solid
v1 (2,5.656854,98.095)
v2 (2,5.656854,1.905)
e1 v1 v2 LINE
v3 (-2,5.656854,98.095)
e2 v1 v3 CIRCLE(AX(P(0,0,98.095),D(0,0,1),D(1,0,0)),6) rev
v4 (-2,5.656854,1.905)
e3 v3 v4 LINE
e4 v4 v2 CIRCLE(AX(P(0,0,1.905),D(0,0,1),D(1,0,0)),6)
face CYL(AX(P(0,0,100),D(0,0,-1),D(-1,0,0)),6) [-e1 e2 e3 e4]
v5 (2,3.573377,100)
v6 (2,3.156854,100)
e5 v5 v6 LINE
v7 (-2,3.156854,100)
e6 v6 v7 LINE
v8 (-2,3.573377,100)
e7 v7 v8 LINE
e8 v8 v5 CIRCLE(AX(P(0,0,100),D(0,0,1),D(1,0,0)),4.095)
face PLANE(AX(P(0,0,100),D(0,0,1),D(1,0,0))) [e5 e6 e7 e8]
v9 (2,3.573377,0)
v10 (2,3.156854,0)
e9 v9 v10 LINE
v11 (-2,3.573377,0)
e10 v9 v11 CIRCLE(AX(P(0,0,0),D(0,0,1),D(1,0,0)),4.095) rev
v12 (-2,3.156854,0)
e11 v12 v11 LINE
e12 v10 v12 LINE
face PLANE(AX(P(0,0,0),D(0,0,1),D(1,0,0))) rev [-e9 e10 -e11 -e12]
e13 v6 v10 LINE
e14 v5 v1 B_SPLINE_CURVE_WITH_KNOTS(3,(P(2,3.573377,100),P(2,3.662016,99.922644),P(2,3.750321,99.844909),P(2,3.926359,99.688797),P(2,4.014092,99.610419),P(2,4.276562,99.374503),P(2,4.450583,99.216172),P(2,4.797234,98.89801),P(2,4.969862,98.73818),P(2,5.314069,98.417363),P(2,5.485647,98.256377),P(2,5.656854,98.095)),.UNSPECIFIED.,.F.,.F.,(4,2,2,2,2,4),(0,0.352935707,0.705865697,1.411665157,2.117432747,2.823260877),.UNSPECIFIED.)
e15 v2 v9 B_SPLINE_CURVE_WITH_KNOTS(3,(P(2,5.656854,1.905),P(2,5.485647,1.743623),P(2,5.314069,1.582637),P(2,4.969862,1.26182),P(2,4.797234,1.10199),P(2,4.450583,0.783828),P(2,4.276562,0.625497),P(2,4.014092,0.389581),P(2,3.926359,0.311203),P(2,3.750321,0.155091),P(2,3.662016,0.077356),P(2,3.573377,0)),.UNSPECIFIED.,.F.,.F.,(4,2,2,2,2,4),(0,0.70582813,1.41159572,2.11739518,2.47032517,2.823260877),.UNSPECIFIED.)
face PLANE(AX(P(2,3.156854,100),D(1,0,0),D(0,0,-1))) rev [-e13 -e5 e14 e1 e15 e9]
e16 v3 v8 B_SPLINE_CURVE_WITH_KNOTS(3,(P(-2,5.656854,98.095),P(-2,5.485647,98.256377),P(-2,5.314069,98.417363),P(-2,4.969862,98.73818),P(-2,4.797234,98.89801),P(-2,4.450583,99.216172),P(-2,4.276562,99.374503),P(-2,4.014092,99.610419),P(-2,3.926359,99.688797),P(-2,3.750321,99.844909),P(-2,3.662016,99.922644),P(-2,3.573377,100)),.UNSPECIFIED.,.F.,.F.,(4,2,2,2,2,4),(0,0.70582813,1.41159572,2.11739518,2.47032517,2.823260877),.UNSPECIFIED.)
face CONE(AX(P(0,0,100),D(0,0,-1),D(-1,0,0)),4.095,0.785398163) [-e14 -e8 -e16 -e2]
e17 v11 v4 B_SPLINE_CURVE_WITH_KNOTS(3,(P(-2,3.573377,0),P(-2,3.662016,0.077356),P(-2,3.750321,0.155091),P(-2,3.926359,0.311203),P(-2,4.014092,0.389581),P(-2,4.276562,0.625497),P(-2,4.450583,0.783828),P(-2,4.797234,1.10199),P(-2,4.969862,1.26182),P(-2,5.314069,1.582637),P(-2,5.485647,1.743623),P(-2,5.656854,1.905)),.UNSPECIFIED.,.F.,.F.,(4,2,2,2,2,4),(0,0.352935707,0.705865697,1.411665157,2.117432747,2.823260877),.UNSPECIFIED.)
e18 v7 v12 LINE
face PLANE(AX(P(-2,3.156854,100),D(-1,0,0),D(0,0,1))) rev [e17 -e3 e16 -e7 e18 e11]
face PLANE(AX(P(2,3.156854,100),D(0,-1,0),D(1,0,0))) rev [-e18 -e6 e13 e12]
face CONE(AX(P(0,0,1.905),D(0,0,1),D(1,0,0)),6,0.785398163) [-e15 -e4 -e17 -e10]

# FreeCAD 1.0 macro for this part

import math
import FreeCAD as App
import Part
import Sketcher

V = App.Vector
Q = App.Units.Quantity


def edges_at(feature, points):
    """Names of the edges that pass closest to the given points."""
    edges = feature.Shape.Edges
    near = lambda p: min(range(len(edges)), key=lambda i: edges[i].distToShape(Part.Vertex(*p))[0])
    return sorted({f"Edge{near(p) + 1}" for p in points})

doc = App.newDocument("Part")
body = doc.addObject("PartDesign::Body", "Body")

# Sketch on XY plane
sketch1 = doc.addObject("Sketcher::SketchObject", "Sketch")
body.addObject(sketch1)
sketch1.AttachmentSupport = (doc.XY_Plane, [""])
sketch1.MapMode = "FlatFace"
sketch1.addGeometry([
    Part.LineSegment(V(-2, 3.2, 0), V(-2, 5.7, 0)),
    Part.ArcOfCircle(Part.Circle(V(0, 0, 0), V(0, 0, 1), 6), math.radians(109), math.radians(431)),
    Part.LineSegment(V(2, 5.7, 0), V(2, 3.2, 0)),
    Part.LineSegment(V(2, 3.2, 0), V(-2, 3.2, 0)),
], False)
sketch1.addConstraint([
    Sketcher.Constraint("Coincident", 0, 2, 1, 1),
    Sketcher.Constraint("Coincident", 1, 2, 2, 1),
    Sketcher.Constraint("Coincident", 2, 2, 3, 1),
    Sketcher.Constraint("Coincident", 3, 2, 0, 1),
    Sketcher.Constraint("Vertical", 0),
    Sketcher.Constraint("Vertical", 2),
    Sketcher.Constraint("Horizontal", 3),
    Sketcher.Constraint("Coincident", 1, 3, -1, 1),
    Sketcher.Constraint("Horizontal", 0, 2, 1, 2),
    Sketcher.Constraint("Radius", 1, Q("6 mm")),
    Sketcher.Constraint("DistanceX", 3, 2, 3, 1, Q("4 mm")),
    Sketcher.Constraint("DistanceY", 0, 1, 0, 2, Q("2.5 mm")),
])
pad1 = doc.addObject("PartDesign::Pad", "Pad")
body.addObject(pad1)
pad1.Profile = sketch1
pad1.Length = 100
doc.recompute()

chamfer = doc.addObject("PartDesign::Chamfer", "Chamfer")
body.addObject(chamfer)
chamfer.Base = (pad1, edges_at(pad1, [(0, -6, 100), (0, -6, 0)]))
chamfer.Size = 1.905

doc.recompute()
